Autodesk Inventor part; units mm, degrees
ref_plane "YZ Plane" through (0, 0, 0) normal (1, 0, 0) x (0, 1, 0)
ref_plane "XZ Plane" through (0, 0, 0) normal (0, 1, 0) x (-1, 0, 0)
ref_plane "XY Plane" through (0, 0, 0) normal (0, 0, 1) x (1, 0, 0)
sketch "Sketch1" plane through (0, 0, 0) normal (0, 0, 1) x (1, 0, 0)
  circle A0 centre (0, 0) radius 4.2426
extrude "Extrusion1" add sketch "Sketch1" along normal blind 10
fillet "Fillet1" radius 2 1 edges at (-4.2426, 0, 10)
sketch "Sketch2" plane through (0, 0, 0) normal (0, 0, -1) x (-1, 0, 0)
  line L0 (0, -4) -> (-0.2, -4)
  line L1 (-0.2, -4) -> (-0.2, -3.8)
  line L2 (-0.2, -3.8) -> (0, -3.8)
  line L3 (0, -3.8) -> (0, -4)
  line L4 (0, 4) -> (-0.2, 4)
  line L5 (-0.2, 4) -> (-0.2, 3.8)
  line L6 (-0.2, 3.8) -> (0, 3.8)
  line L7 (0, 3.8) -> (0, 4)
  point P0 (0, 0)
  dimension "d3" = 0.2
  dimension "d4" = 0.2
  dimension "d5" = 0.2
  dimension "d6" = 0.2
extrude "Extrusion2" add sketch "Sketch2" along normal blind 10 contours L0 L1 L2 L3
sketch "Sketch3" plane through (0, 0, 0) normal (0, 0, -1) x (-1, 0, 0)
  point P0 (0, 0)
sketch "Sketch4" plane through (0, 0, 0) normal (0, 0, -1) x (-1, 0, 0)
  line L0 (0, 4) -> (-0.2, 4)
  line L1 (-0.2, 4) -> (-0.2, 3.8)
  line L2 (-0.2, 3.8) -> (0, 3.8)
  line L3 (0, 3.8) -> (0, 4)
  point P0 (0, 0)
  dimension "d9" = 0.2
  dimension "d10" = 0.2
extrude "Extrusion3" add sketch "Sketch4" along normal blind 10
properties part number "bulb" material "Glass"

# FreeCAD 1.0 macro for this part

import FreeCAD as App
import Part
import Sketcher
from FreeCAD import Vector


def edges_at(feature, points):
    """Names of the edges that pass closest to the given points."""
    edges = feature.Shape.Edges
    near = lambda p: min(range(len(edges)), key=lambda i: edges[i].distToShape(Part.Vertex(*p))[0])
    return sorted({f"Edge{near(p) + 1}" for p in points})

doc = App.newDocument("Part")
params = doc.addObject("Spreadsheet::Sheet", "Params")
for row, (alias, value) in enumerate([
    ("pad1_length", "10 mm"),
    ("fillet_radius", "2 mm"),
    ("sketch2_width", "0.2 mm"),
    ("pad2_length", "10 mm"),
    ("sketch3_width", "0.2 mm"),
    ("pad3_length", "10 mm"),
], start=1):
    params.set(f"A{row}", alias)
    params.set(f"B{row}", "=" + value)
    params.setAlias(f"B{row}", alias)

body = doc.addObject("PartDesign::Body", "Body")

# Sketch on XY plane
sketch1 = body.newObject("Sketcher::SketchObject", "Sketch")
sketch1.AttachmentSupport = (doc.getObject("XY_Plane"), [""])
sketch1.MapMode = "FlatFace"
sketch1.addGeometry(Part.Circle(Vector(0, 0, 0), Vector(0, 0, 1), 4.2426), False)
sketch1.addConstraint(Sketcher.Constraint("Coincident", 0, 3, -1, 1))
sketch1.addConstraint(Sketcher.Constraint("Diameter", 0, 8.4852))
pad1 = body.newObject("PartDesign::Pad", "Pad")
pad1.Profile = sketch1
pad1.setExpression("Length", "Params.pad1_length")
doc.recompute()

fillet = body.newObject("PartDesign::Fillet", "Fillet")
fillet.Base = (pad1, edges_at(pad1, [(-4.243, 0, 10)]))
fillet.setExpression("Radius", "Params.fillet_radius")

# Sketch on XY plane
sketch2 = body.newObject("Sketcher::SketchObject", "Sketch001")
sketch2.AttachmentSupport = (doc.getObject("XY_Plane"), [""])
sketch2.MapMode = "FlatFace"
sketch2.addGeometry(Part.LineSegment(Vector(0.2, -4, 0), Vector(0, -4, 0)), False)
sketch2.addGeometry(Part.LineSegment(Vector(0, -4, 0), Vector(0, -3.8, 0)), False)
sketch2.addGeometry(Part.LineSegment(Vector(0, -3.8, 0), Vector(0.2, -3.8, 0)), False)
sketch2.addGeometry(Part.LineSegment(Vector(0.2, -3.8, 0), Vector(0.2, -4, 0)), False)
sketch2.addConstraint(Sketcher.Constraint("Coincident", 0, 2, 1, 1))
sketch2.addConstraint(Sketcher.Constraint("Coincident", 1, 2, 2, 1))
sketch2.addConstraint(Sketcher.Constraint("Coincident", 2, 2, 3, 1))
sketch2.addConstraint(Sketcher.Constraint("Coincident", 3, 2, 0, 1))
sketch2.addConstraint(Sketcher.Constraint("Horizontal", 0))
sketch2.addConstraint(Sketcher.Constraint("Vertical", 1))
sketch2.addConstraint(Sketcher.Constraint("Horizontal", 2))
sketch2.addConstraint(Sketcher.Constraint("Vertical", 3))
sketch2.addConstraint(Sketcher.Constraint("PointOnObject", 0, 2, -2))
sketch2.addConstraint(Sketcher.Constraint("Equal", 2, 1))
sketch2.addConstraint(Sketcher.Constraint("DistanceX", 0, 2, 0, 1, 0.2))
sketch2.addConstraint(Sketcher.Constraint("DistanceY", 0, 2, -1, 1, 4.0))
sketch2.setExpression("Constraints[10]", "Params.sketch2_width")
pad2 = body.newObject("PartDesign::Pad", "Pad001")
pad2.Profile = sketch2
pad2.setExpression("Length", "Params.pad2_length")
pad2.Reversed = True

# Sketch on XY plane
sketch3 = body.newObject("Sketcher::SketchObject", "Sketch002")
sketch3.AttachmentSupport = (doc.getObject("XY_Plane"), [""])
sketch3.MapMode = "FlatFace"
sketch3.addGeometry(Part.LineSegment(Vector(0, 3.8, 0), Vector(0, 4, 0)), False)
sketch3.addGeometry(Part.LineSegment(Vector(0, 4, 0), Vector(0.2, 4, 0)), False)
sketch3.addGeometry(Part.LineSegment(Vector(0.2, 4, 0), Vector(0.2, 3.8, 0)), False)
sketch3.addGeometry(Part.LineSegment(Vector(0.2, 3.8, 0), Vector(0, 3.8, 0)), False)
sketch3.addConstraint(Sketcher.Constraint("Coincident", 0, 2, 1, 1))
sketch3.addConstraint(Sketcher.Constraint("Coincident", 1, 2, 2, 1))
sketch3.addConstraint(Sketcher.Constraint("Coincident", 2, 2, 3, 1))
sketch3.addConstraint(Sketcher.Constraint("Coincident", 3, 2, 0, 1))
sketch3.addConstraint(Sketcher.Constraint("Vertical", 0))
sketch3.addConstraint(Sketcher.Constraint("Horizontal", 1))
sketch3.addConstraint(Sketcher.Constraint("Vertical", 2))
sketch3.addConstraint(Sketcher.Constraint("Horizontal", 3))
sketch3.addConstraint(Sketcher.Constraint("PointOnObject", 0, 2, -2))
sketch3.addConstraint(Sketcher.Constraint("Equal", 3, 0))
sketch3.addConstraint(Sketcher.Constraint("DistanceX", 1, 1, 1, 2, 0.2))
sketch3.addConstraint(Sketcher.Constraint("DistanceY", -1, 1, 0, 2, 4.0))
sketch3.setExpression("Constraints[10]", "Params.sketch3_width")
pad3 = body.newObject("PartDesign::Pad", "Pad002")
pad3.Profile = sketch3
pad3.setExpression("Length", "Params.pad3_length")
pad3.Reversed = True

doc.recompute()
